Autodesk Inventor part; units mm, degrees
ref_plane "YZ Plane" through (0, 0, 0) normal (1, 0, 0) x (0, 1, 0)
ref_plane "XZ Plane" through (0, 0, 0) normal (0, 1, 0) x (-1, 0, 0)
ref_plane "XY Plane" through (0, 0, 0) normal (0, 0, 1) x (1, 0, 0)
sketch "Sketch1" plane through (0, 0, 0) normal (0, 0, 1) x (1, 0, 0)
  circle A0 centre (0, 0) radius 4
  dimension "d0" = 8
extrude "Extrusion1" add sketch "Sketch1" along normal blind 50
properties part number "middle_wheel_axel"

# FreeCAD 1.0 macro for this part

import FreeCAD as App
import Part
import Sketcher

V = App.Vector
Q = App.Units.Quantity

doc = App.newDocument("Part")
params = doc.addObject("Spreadsheet::Sheet", "Params")
for row, (alias, value) in enumerate([
    ("sketch1_diameter", "8 mm"),
    ("pad1_length", "50 mm"),
], start=1):
    params.set(f"A{row}", alias)
    params.set(f"B{row}", "=" + value)
    params.setAlias(f"B{row}", alias)

body = doc.addObject("PartDesign::Body", "Body")

sketch1 = body.newObject("Sketcher::SketchObject", "Sketch")
sketch1.AttachmentSupport = (doc.getObject("XY_Plane"), [""])
sketch1.MapMode = "FlatFace"
sketch1.addGeometry(Part.Circle(V(0, 0, 0), V(0, 0, 1), 4), False)
sketch1.addConstraint(Sketcher.Constraint("Coincident", 0, 3, -1, 1))
sketch1.addConstraint(Sketcher.Constraint("Diameter", 0, Q("8 mm")))
sketch1.setExpression("Constraints[1]", "Params.sketch1_diameter")
pad1 = body.newObject("PartDesign::Pad", "Pad")
pad1.Profile = sketch1
pad1.setExpression("Length", "Params.pad1_length")

doc.recompute()
